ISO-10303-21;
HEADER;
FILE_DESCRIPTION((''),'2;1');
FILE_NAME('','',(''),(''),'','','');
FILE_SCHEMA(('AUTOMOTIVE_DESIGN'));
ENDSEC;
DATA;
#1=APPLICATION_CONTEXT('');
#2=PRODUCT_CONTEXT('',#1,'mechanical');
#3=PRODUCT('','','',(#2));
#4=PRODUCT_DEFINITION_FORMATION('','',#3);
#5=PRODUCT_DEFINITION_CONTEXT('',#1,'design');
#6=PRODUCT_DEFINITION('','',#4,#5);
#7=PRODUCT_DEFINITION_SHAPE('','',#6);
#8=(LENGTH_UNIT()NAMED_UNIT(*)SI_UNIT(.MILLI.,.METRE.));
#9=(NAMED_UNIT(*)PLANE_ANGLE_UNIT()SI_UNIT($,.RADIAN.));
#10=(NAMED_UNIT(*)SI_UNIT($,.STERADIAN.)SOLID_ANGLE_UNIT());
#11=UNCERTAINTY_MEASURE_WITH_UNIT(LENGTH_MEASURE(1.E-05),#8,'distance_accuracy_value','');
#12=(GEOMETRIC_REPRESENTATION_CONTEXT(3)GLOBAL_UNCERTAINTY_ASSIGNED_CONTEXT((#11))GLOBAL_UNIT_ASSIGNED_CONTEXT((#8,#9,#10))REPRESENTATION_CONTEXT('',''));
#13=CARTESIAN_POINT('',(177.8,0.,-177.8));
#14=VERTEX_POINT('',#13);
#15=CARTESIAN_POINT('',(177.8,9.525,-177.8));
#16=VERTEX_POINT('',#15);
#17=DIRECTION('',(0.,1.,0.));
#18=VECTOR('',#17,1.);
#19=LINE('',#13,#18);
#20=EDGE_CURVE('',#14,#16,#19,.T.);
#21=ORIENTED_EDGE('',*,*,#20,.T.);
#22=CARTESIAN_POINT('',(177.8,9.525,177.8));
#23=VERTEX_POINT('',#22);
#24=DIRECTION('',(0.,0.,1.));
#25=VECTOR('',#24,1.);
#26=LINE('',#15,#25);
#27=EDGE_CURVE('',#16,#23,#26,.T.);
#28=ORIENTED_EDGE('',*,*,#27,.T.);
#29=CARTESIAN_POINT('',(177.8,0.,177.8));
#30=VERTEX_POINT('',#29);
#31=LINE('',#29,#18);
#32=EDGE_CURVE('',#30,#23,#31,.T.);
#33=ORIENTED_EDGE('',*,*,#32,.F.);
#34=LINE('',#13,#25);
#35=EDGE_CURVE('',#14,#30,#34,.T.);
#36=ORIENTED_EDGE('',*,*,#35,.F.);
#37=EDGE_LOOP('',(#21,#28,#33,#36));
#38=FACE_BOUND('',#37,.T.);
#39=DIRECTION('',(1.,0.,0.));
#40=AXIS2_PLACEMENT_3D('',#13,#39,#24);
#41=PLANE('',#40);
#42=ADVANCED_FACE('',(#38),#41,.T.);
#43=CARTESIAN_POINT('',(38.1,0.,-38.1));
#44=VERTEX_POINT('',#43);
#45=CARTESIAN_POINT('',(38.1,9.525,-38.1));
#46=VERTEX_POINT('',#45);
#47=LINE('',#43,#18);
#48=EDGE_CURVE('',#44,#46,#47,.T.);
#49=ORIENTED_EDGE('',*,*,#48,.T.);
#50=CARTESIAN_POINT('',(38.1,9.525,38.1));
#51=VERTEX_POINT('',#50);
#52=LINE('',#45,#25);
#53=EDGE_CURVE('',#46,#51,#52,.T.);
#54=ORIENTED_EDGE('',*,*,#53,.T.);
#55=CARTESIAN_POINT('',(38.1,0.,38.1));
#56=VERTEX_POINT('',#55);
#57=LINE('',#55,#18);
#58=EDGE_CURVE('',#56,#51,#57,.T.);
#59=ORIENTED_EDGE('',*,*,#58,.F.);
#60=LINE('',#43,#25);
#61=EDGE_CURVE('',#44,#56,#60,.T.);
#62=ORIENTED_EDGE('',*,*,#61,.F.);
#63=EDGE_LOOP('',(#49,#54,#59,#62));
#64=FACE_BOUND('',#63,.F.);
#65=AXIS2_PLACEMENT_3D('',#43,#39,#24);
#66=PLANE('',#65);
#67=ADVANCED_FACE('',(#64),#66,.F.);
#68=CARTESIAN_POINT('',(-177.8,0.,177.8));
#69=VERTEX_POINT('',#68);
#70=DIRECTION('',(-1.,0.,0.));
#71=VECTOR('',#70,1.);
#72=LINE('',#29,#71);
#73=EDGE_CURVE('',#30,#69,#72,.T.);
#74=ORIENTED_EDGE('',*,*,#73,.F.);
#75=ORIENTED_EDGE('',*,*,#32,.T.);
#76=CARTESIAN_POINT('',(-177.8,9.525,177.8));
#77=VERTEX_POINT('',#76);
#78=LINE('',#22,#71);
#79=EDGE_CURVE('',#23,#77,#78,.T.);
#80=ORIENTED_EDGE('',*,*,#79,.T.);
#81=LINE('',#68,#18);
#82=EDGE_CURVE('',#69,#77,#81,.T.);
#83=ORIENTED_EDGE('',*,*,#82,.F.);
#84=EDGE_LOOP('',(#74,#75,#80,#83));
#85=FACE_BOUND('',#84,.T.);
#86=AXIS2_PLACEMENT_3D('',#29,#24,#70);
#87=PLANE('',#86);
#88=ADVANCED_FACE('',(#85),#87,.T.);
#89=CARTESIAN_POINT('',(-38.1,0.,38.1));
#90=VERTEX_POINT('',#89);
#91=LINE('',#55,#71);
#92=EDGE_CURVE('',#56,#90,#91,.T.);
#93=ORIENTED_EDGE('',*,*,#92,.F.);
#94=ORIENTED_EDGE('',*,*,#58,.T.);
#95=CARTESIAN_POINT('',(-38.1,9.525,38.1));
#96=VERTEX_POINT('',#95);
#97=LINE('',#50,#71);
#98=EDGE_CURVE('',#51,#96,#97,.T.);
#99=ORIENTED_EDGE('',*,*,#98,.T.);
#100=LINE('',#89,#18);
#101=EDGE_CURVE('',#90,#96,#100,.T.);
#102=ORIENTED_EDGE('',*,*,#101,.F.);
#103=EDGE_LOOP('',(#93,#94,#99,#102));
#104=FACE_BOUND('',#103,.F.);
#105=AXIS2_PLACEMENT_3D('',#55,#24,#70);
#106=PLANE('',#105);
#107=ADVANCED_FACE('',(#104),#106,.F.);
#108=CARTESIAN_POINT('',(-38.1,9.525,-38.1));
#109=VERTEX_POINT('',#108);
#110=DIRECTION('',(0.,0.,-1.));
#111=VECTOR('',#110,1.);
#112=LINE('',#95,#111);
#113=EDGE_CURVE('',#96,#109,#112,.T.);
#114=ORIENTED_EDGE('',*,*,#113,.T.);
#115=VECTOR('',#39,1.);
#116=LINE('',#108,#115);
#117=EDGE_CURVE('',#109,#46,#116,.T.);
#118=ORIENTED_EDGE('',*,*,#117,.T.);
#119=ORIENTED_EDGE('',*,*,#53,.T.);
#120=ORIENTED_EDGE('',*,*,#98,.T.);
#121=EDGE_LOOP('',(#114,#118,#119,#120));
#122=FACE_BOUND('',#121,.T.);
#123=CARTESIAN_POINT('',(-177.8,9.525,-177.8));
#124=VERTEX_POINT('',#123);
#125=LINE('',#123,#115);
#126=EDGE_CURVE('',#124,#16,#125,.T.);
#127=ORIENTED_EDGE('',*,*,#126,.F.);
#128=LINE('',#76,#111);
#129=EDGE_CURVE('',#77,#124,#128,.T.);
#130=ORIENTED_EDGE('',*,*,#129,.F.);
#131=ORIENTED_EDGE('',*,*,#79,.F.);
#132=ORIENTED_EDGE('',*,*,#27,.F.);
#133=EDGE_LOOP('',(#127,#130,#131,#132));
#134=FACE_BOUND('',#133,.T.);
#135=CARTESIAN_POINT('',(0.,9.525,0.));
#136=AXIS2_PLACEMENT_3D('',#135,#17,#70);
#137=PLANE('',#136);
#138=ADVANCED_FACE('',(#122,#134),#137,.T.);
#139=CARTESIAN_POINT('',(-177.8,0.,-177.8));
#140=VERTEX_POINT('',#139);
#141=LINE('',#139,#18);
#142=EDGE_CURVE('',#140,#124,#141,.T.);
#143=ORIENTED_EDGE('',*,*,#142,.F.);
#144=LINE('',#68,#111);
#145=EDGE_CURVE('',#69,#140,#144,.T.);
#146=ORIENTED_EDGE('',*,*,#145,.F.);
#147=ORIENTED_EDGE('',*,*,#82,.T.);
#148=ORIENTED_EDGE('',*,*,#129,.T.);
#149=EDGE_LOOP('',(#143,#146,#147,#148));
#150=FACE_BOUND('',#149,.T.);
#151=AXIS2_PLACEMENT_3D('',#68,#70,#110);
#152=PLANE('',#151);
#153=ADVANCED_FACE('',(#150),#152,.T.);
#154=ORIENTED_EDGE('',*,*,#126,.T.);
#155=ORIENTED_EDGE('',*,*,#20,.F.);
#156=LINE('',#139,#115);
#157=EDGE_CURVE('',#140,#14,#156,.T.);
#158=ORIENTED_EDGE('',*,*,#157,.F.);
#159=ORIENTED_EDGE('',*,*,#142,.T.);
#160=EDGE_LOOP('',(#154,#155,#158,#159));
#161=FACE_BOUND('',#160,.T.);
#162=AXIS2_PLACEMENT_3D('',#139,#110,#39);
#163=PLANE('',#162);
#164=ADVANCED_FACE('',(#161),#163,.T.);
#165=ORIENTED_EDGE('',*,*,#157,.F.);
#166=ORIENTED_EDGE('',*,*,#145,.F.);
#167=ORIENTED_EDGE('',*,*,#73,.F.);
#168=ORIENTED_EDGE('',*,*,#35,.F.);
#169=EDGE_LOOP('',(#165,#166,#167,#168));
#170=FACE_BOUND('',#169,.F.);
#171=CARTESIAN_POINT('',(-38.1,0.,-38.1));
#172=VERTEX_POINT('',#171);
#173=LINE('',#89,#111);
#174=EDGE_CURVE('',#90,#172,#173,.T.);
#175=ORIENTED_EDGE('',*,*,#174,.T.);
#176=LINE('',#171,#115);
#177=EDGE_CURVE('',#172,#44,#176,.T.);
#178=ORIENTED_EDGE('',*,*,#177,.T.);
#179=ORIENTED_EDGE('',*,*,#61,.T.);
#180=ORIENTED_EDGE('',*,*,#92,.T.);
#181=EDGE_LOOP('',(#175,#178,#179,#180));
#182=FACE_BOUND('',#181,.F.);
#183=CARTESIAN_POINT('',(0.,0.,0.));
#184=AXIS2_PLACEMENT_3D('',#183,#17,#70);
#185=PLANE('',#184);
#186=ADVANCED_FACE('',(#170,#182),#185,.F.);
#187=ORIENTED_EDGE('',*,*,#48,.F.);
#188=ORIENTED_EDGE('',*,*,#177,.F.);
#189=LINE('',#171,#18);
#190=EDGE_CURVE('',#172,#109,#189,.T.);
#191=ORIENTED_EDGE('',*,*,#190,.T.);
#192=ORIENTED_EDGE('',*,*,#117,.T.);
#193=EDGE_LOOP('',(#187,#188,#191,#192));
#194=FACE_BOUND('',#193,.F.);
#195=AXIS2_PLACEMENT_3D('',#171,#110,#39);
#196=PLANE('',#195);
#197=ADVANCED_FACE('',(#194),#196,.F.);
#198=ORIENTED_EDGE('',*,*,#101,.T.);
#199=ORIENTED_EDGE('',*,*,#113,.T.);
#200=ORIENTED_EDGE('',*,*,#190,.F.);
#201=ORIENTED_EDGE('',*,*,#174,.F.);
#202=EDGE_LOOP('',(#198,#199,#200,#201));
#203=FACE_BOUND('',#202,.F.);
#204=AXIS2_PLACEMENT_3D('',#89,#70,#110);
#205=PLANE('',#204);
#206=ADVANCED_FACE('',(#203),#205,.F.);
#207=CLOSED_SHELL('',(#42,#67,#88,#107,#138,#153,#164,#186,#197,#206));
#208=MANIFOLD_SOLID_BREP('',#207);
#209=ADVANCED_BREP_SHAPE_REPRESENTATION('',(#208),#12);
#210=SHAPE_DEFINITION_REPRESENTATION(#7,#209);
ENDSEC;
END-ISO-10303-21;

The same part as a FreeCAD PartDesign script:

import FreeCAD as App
import Part
import Sketcher
Q = App.Units.Quantity

doc = App.newDocument("Part")
params = doc.addObject("Spreadsheet::Sheet", "Params")
for row, (alias, value) in enumerate([
    ("sketch1_width", "14 in"),
    ("sketch1_width2", "3 in"),
    ("pad1_length", "0.375 in"),
], start=1):
    params.set(f"A{row}", alias)
    params.set(f"B{row}", "=" + value)
    params.setAlias(f"B{row}", alias)

body = doc.addObject("PartDesign::Body", "Body")

# Sketch on XZ plane
sketch1 = body.newObject("Sketcher::SketchObject", "Sketch")
sketch1.AttachmentSupport = (doc.getObject("XZ_Plane"), [""])
sketch1.MapMode = "FlatFace"
sketch1.addGeometry(Part.LineSegment(App.Vector(-178, 178, 0), App.Vector(178, 178, 0)), False)
sketch1.addGeometry(Part.LineSegment(App.Vector(178, 178, 0), App.Vector(178, -178, 0)), False)
sketch1.addGeometry(Part.LineSegment(App.Vector(178, -178, 0), App.Vector(-178, -178, 0)), False)
sketch1.addGeometry(Part.LineSegment(App.Vector(-178, -178, 0), App.Vector(-178, 178, 0)), False)
sketch1.addGeometry(Part.LineSegment(App.Vector(38, -38, 0), App.Vector(38, 38, 0)), False)
sketch1.addGeometry(Part.LineSegment(App.Vector(38, 38, 0), App.Vector(-38, 38, 0)), False)
sketch1.addGeometry(Part.LineSegment(App.Vector(-38, 38, 0), App.Vector(-38, -38, 0)), False)
sketch1.addGeometry(Part.LineSegment(App.Vector(-38, -38, 0), App.Vector(38, -38, 0)), False)
sketch1.addConstraint(Sketcher.Constraint("Coincident", 0, 2, 1, 1))
sketch1.addConstraint(Sketcher.Constraint("Coincident", 1, 2, 2, 1))
sketch1.addConstraint(Sketcher.Constraint("Coincident", 2, 2, 3, 1))
sketch1.addConstraint(Sketcher.Constraint("Coincident", 3, 2, 0, 1))
sketch1.addConstraint(Sketcher.Constraint("Coincident", 4, 2, 5, 1))
sketch1.addConstraint(Sketcher.Constraint("Coincident", 5, 2, 6, 1))
sketch1.addConstraint(Sketcher.Constraint("Coincident", 6, 2, 7, 1))
sketch1.addConstraint(Sketcher.Constraint("Coincident", 7, 2, 4, 1))
sketch1.addConstraint(Sketcher.Constraint("Horizontal", 0))
sketch1.addConstraint(Sketcher.Constraint("Vertical", 1))
sketch1.addConstraint(Sketcher.Constraint("Horizontal", 2))
sketch1.addConstraint(Sketcher.Constraint("Vertical", 3))
sketch1.addConstraint(Sketcher.Constraint("Vertical", 4))
sketch1.addConstraint(Sketcher.Constraint("Horizontal", 5))
sketch1.addConstraint(Sketcher.Constraint("Vertical", 6))
sketch1.addConstraint(Sketcher.Constraint("Horizontal", 7))
sketch1.addConstraint(Sketcher.Constraint("Symmetric", 0, 2, 2, 2, -1, 1))
sketch1.addConstraint(Sketcher.Constraint("Symmetric", 4, 2, 6, 2, -1, 1))
sketch1.addConstraint(Sketcher.Constraint("Equal", 2, 1))
sketch1.addConstraint(Sketcher.Constraint("Equal", 7, 4))
sketch1.addConstraint(Sketcher.Constraint("DistanceX", 0, 1, 0, 2, Q("14 in")))
sketch1.addConstraint(Sketcher.Constraint("DistanceX", 5, 2, 5, 1, Q("3 in")))
sketch1.setExpression("Constraints[20]", "Params.sketch1_width")
sketch1.setExpression("Constraints[21]", "Params.sketch1_width2")
pad1 = body.newObject("PartDesign::Pad", "Pad")
pad1.Profile = sketch1
pad1.setExpression("Length", "Params.pad1_length")
pad1.Reversed = True

doc.recompute()
